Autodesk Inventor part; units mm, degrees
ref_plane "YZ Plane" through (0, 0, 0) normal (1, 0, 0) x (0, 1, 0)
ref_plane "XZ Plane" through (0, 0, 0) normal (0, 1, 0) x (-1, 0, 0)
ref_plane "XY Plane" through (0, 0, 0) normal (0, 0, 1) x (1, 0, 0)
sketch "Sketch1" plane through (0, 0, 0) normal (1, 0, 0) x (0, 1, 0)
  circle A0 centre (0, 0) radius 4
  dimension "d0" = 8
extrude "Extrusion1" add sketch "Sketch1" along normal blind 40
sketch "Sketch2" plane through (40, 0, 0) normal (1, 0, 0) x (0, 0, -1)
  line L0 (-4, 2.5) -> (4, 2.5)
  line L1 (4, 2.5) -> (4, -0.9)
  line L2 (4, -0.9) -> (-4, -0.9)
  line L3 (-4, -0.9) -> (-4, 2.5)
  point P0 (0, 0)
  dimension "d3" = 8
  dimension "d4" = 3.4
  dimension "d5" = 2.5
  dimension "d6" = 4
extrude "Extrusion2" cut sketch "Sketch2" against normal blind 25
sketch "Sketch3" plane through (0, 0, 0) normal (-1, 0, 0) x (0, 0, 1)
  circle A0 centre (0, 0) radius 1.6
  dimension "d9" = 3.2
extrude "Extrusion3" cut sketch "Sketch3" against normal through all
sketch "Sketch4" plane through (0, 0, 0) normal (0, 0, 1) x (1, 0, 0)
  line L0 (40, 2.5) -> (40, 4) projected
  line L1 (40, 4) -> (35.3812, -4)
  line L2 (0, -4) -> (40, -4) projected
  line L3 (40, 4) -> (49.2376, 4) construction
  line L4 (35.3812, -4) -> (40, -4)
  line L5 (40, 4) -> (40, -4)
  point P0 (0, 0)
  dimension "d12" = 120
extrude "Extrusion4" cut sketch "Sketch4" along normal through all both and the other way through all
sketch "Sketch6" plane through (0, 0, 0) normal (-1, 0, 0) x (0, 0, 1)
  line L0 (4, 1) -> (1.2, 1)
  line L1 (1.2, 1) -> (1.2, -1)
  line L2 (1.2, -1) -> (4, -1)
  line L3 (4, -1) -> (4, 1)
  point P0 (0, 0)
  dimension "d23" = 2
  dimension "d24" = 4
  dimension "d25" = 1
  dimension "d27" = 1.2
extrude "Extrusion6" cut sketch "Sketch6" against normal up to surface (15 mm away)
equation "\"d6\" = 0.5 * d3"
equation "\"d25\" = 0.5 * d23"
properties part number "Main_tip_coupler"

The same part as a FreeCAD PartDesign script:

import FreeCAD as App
import Part
import Sketcher
from FreeCAD import Vector
Q = App.Units.Quantity

doc = App.newDocument("Part")
body = doc.addObject("PartDesign::Body", "Body")

sketch1 = body.newObject("Sketcher::SketchObject", "Sketch")
sketch1.AttachmentSupport = (doc.getObject("YZ_Plane"), [""])
sketch1.MapMode = "FlatFace"
sketch1.addGeometry(Part.Circle(Vector(0, 0, 0), Vector(0, 0, 1), 4), False)
sketch1.addConstraint([
    Sketcher.Constraint("Coincident", 0, 3, -1, 1),
    Sketcher.Constraint("Diameter", 0, 8.0),
])
pad1 = body.newObject("PartDesign::Pad", "Pad")
pad1.Profile = sketch1
pad1.Length = 40

sketch2 = body.newObject("Sketcher::SketchObject", "Sketch001")
sketch2.AttachmentSupport = (doc.getObject("YZ_Plane"), [""])
sketch2.MapMode = "FlatFace"
sketch2.AttachmentOffset = App.Placement(Vector(0, 0, 40), App.Rotation())
sketch2.addGeometry([
    Part.LineSegment(Vector(2.5, -4, 0), Vector(2.5, 4, 0)),
    Part.LineSegment(Vector(2.5, 4, 0), Vector(-0.9, 4, 0)),
    Part.LineSegment(Vector(-0.9, 4, 0), Vector(-0.9, -4, 0)),
    Part.LineSegment(Vector(-0.9, -4, 0), Vector(2.5, -4, 0)),
], False)
sketch2.addConstraint([
    Sketcher.Constraint("Coincident", 0, 2, 1, 1),
    Sketcher.Constraint("Coincident", 1, 2, 2, 1),
    Sketcher.Constraint("Coincident", 2, 2, 3, 1),
    Sketcher.Constraint("Coincident", 3, 2, 0, 1),
    Sketcher.Constraint("Vertical", 0),
    Sketcher.Constraint("Horizontal", 1),
    Sketcher.Constraint("Vertical", 2),
    Sketcher.Constraint("Horizontal", 3),
    Sketcher.Constraint("DistanceY", 0, 1, 0, 2, 8.0),
    Sketcher.Constraint("DistanceX", 1, 2, 1, 1, 3.4),
    Sketcher.Constraint("DistanceY", -1, 1, 0, 2, 4.0),
    Sketcher.Constraint("DistanceX", -1, 1, 0, 2, 2.5),
])
pocket1 = body.newObject("PartDesign::Pocket", "Pocket")
pocket1.Profile = sketch2
pocket1.Length = 25

sketch3 = body.newObject("Sketcher::SketchObject", "Sketch002")
sketch3.AttachmentSupport = (doc.getObject("YZ_Plane"), [""])
sketch3.MapMode = "FlatFace"
sketch3.addGeometry(Part.Circle(Vector(0, 0, 0), Vector(0, 0, 1), 1.6), False)
sketch3.addConstraint([
    Sketcher.Constraint("Coincident", 0, 3, -1, 1),
    Sketcher.Constraint("Diameter", 0, 3.2),
])
pocket2 = body.newObject("PartDesign::Pocket", "Pocket001")
pocket2.Profile = sketch3
pocket2.Type = "ThroughAll"
pocket2.Reversed = True

sketch4 = body.newObject("Sketcher::SketchObject", "Sketch003")
sketch4.AttachmentSupport = (doc.getObject("XY_Plane"), [""])
sketch4.MapMode = "FlatFace"
sketch4.addGeometry([
    Part.LineSegment(Vector(40, -4, 0), Vector(40, 4, 0)),
    Part.LineSegment(Vector(40, 4, 0), Vector(35.3812, -4, 0)),
    Part.LineSegment(Vector(35.3812, -4, 0), Vector(40, -4, 0)),
], False)
sketch4.addConstraint([
    Sketcher.Constraint("Coincident", 0, 2, 1, 1),
    Sketcher.Constraint("Coincident", 1, 2, 2, 1),
    Sketcher.Constraint("Coincident", 2, 2, 0, 1),
    Sketcher.Constraint("Vertical", 0),
    Sketcher.Constraint("Horizontal", 2),
    Sketcher.Constraint("Angle", 1, Q("-120 deg")),
    Sketcher.Constraint("DistanceY", 0, 1, 0, 2, 8.0),
    Sketcher.Constraint("DistanceX", -1, 1, 0, 2, 40.0),
    Sketcher.Constraint("DistanceY", -1, 1, 0, 2, 4.0),
])
pocket3 = body.newObject("PartDesign::Pocket", "Pocket002")
pocket3.Profile = sketch4
pocket3.Type = "ThroughAll"
pocket3.Midplane = True

sketch5 = body.newObject("Sketcher::SketchObject", "Sketch004")
sketch5.AttachmentSupport = (doc.getObject("YZ_Plane"), [""])
sketch5.MapMode = "FlatFace"
sketch5.addGeometry([
    Part.LineSegment(Vector(-1, 4, 0), Vector(1, 4, 0)),
    Part.LineSegment(Vector(1, 4, 0), Vector(1, 1.2, 0)),
    Part.LineSegment(Vector(1, 1.2, 0), Vector(-1, 1.2, 0)),
    Part.LineSegment(Vector(-1, 1.2, 0), Vector(-1, 4, 0)),
], False)
sketch5.addConstraint([
    Sketcher.Constraint("Coincident", 0, 2, 1, 1),
    Sketcher.Constraint("Coincident", 1, 2, 2, 1),
    Sketcher.Constraint("Coincident", 2, 2, 3, 1),
    Sketcher.Constraint("Coincident", 3, 2, 0, 1),
    Sketcher.Constraint("Horizontal", 0),
    Sketcher.Constraint("Vertical", 1),
    Sketcher.Constraint("Horizontal", 2),
    Sketcher.Constraint("Vertical", 3),
    Sketcher.Constraint("DistanceX", 0, 1, 0, 2, 2.0),
    Sketcher.Constraint("DistanceX", -1, 1, 0, 2, 1.0),
    Sketcher.Constraint("DistanceY", -1, 1, 0, 2, 4.0),
    Sketcher.Constraint("DistanceY", -1, 1, 1, 2, 1.2),
])
pocket4 = body.newObject("PartDesign::Pocket", "Pocket003")
pocket4.Profile = sketch5
pocket4.Length = 15
pocket4.Reversed = True

doc.recompute()
